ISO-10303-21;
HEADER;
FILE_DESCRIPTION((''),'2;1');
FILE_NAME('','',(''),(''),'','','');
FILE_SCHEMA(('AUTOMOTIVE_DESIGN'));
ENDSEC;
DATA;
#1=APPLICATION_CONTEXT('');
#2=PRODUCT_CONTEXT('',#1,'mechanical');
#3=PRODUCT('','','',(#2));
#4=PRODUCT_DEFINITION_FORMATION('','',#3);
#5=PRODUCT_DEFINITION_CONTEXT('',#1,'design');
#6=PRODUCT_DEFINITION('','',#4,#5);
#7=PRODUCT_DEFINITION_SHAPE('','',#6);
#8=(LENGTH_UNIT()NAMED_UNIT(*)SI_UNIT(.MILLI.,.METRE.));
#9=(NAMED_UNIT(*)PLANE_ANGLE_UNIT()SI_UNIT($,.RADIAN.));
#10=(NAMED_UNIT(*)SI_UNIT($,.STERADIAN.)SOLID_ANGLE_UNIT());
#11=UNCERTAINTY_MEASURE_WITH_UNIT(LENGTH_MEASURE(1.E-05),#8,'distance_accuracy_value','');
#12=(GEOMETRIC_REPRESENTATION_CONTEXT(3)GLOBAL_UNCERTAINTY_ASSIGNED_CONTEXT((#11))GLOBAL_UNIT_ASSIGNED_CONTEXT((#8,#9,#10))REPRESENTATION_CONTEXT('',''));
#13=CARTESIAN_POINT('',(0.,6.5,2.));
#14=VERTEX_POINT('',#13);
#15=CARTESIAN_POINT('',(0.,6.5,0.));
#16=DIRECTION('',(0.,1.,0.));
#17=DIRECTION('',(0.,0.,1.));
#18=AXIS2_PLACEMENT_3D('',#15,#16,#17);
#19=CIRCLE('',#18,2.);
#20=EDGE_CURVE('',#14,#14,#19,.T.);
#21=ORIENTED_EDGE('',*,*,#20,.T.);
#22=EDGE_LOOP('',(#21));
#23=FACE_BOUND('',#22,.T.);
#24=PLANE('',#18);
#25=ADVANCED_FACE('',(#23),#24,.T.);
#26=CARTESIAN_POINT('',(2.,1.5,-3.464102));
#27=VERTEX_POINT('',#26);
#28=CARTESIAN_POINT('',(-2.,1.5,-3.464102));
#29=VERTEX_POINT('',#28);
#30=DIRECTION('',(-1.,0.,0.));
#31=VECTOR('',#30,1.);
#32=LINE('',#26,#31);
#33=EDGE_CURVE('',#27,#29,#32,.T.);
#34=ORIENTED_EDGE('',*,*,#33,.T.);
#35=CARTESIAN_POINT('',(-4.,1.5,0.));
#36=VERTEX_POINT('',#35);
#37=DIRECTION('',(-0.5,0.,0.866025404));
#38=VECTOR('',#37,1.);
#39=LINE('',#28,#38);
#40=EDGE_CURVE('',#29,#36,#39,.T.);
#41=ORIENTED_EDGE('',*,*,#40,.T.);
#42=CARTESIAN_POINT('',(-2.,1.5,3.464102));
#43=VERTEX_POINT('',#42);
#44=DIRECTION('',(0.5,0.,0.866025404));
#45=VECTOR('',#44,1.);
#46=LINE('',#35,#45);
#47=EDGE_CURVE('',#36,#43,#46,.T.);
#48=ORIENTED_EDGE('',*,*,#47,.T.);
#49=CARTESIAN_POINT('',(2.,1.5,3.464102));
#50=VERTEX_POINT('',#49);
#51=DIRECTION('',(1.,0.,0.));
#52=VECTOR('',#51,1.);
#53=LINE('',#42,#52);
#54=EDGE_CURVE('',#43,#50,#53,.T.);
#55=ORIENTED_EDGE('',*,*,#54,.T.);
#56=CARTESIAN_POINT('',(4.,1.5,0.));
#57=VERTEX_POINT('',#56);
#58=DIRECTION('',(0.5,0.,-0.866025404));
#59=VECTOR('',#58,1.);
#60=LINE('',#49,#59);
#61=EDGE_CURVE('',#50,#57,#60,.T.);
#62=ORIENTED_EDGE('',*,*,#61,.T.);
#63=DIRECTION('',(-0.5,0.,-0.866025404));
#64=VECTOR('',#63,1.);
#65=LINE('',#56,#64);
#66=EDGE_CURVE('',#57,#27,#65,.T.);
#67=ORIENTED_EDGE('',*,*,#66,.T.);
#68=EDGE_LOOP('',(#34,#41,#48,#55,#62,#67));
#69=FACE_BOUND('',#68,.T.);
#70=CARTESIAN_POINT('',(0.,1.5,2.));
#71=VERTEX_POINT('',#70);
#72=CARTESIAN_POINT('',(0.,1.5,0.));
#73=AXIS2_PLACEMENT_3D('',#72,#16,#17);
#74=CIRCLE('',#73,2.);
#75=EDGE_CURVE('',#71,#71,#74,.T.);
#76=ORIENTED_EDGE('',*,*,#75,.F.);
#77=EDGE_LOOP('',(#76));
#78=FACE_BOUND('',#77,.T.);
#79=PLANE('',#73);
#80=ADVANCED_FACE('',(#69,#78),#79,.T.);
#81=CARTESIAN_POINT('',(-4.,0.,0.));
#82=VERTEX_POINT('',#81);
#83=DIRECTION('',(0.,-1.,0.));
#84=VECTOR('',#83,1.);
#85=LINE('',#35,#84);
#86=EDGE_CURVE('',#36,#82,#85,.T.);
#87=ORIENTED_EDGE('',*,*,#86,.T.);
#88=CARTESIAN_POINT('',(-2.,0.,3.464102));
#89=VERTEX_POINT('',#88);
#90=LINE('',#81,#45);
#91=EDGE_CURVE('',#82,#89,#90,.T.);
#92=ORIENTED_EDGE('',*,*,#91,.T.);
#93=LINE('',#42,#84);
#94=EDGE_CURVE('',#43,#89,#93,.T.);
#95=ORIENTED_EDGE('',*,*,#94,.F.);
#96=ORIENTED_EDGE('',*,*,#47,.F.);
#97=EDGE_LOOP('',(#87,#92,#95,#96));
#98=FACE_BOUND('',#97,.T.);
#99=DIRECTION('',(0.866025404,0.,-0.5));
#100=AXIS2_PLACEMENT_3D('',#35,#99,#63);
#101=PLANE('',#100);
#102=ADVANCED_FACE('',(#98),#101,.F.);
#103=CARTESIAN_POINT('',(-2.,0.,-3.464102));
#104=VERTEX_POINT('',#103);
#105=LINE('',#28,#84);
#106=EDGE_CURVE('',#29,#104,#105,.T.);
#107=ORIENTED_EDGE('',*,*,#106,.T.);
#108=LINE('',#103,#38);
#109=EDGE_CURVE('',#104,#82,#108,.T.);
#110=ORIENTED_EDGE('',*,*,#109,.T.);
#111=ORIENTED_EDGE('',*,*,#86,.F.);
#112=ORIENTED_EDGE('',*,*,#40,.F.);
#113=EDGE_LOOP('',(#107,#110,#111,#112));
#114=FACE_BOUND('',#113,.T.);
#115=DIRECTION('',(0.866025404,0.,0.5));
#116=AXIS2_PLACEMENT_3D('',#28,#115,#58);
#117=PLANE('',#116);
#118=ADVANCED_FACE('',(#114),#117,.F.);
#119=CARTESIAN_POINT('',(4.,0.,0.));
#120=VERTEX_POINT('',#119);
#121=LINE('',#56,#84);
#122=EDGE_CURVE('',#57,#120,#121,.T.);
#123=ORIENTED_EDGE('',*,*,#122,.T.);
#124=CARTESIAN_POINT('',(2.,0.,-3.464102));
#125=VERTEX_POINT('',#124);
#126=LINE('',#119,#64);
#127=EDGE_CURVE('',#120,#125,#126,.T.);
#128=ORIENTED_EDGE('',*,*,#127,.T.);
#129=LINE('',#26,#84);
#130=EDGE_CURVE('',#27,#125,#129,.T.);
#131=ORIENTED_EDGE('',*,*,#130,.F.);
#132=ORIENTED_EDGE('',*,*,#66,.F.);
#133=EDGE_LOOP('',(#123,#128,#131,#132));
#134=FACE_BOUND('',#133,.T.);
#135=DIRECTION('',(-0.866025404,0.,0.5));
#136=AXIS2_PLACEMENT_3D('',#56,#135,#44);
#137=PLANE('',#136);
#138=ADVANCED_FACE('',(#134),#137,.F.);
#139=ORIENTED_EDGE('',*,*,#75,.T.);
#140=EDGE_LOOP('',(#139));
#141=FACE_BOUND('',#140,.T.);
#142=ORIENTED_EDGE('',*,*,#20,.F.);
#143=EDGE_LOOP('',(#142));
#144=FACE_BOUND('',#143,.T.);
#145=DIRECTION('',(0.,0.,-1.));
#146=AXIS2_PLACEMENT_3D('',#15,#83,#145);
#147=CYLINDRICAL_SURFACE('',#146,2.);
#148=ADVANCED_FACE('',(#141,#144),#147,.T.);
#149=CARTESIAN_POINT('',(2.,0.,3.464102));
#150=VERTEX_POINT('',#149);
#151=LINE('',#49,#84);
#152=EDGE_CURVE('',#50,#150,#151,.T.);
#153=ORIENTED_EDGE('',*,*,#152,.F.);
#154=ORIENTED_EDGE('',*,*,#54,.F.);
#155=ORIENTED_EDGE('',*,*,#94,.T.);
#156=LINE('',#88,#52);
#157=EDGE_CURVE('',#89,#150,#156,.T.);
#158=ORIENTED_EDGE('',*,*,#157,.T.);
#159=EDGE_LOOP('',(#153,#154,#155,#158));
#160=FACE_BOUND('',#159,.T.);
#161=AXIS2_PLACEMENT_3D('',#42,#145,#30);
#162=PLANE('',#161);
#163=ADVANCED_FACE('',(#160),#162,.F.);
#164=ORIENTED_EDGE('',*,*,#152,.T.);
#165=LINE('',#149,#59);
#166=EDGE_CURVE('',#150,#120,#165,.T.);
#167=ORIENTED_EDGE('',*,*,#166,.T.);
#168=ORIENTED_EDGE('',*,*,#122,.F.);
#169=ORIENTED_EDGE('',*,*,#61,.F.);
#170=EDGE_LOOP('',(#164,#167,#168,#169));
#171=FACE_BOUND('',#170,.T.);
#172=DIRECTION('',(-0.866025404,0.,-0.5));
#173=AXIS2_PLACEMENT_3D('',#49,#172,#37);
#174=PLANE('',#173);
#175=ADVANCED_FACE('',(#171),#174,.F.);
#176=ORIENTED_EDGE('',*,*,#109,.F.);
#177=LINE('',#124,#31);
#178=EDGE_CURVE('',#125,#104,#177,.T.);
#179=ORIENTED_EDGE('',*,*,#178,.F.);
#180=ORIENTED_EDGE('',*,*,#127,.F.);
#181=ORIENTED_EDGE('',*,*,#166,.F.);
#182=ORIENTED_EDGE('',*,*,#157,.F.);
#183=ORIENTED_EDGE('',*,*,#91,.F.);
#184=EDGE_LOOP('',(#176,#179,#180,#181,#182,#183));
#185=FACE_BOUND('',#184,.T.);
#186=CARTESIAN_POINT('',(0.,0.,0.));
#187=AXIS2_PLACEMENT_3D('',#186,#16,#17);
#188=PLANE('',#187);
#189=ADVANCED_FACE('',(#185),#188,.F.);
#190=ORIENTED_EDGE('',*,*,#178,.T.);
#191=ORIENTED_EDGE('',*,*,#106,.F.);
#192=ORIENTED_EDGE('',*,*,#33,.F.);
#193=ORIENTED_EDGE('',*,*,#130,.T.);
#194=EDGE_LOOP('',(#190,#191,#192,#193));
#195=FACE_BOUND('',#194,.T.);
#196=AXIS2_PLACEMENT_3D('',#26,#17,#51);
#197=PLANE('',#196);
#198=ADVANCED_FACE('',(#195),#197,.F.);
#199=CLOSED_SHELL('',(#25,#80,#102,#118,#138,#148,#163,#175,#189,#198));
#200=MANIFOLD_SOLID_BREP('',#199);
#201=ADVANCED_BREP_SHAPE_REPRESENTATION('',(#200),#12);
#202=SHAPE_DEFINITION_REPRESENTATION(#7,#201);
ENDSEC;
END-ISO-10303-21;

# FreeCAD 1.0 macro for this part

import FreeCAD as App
import Part
import Sketcher
from FreeCAD import Vector
Q = App.Units.Quantity

doc = App.newDocument("Part")
params = doc.addObject("Spreadsheet::Sheet", "Params")
for row, (alias, value) in enumerate([
    ("sketch1_width", "4 mm"),
    ("sketch1_length", "4 mm"),
    ("pad1_length", "1.5 mm"),
    ("sketch2_diameter", "4 mm"),
    ("pad2_length", "5 mm"),
], start=1):
    params.set(f"A{row}", alias)
    params.set(f"B{row}", "=" + value)
    params.setAlias(f"B{row}", alias)

body = doc.addObject("PartDesign::Body", "Body")

# Sketch on XZ plane
sketch1 = doc.addObject("Sketcher::SketchObject", "Sketch")
body.addObject(sketch1)
sketch1.AttachmentSupport = (doc.XZ_Plane, [""])
sketch1.MapMode = "FlatFace"
sketch1.addGeometry(Part.LineSegment(Vector(4, 0, 0), Vector(2, -3.5, 0)), False)
sketch1.addGeometry(Part.LineSegment(Vector(2, -3.5, 0), Vector(-2, -3.5, 0)), False)
sketch1.addGeometry(Part.LineSegment(Vector(-2, -3.5, 0), Vector(-4, 0, 0)), False)
sketch1.addGeometry(Part.LineSegment(Vector(-4, 0, 0), Vector(-2, 3.5, 0)), False)
sketch1.addGeometry(Part.LineSegment(Vector(-2, 3.5, 0), Vector(2, 3.5, 0)), False)
sketch1.addGeometry(Part.LineSegment(Vector(2, 3.5, 0), Vector(4, 0, 0)), False)
sketch1.addConstraint(Sketcher.Constraint("Coincident", 0, 2, 1, 1))
sketch1.addConstraint(Sketcher.Constraint("Coincident", 1, 2, 2, 1))
sketch1.addConstraint(Sketcher.Constraint("Coincident", 2, 2, 3, 1))
sketch1.addConstraint(Sketcher.Constraint("Coincident", 3, 2, 4, 1))
sketch1.addConstraint(Sketcher.Constraint("Coincident", 4, 2, 5, 1))
sketch1.addConstraint(Sketcher.Constraint("Coincident", 5, 2, 0, 1))
sketch1.addConstraint(Sketcher.Constraint("Horizontal", 1))
sketch1.addConstraint(Sketcher.Constraint("Horizontal", 4))
sketch1.addConstraint(Sketcher.Constraint("Symmetric", 0, 2, 3, 2, -1, 1))
sketch1.addConstraint(Sketcher.Constraint("Symmetric", 2, 2, 5, 2, -1, 1))
sketch1.addConstraint(Sketcher.Constraint("PointOnObject", 2, 2, -1))
sketch1.addConstraint(Sketcher.Constraint("Parallel", 2, 5))
sketch1.addConstraint(Sketcher.Constraint("Vertical", 1, 2, 3, 2))
sketch1.addConstraint(Sketcher.Constraint("DistanceX", 1, 2, 1, 1, Q("4 mm")))
sketch1.addConstraint(Sketcher.Constraint("Angle", 0, Q("-120 deg")))
sketch1.addConstraint(Sketcher.Constraint("Distance", 0, Q("4 mm")))
sketch1.setExpression("Constraints[13]", "Params.sketch1_width")
sketch1.setExpression("Constraints[15]", "Params.sketch1_length")
pad1 = doc.addObject("PartDesign::Pad", "Pad")
body.addObject(pad1)
pad1.Profile = sketch1
pad1.setExpression("Length", "Params.pad1_length")
pad1.Reversed = True

# Sketch on XZ plane
sketch2 = doc.addObject("Sketcher::SketchObject", "Sketch001")
body.addObject(sketch2)
sketch2.AttachmentSupport = (doc.XZ_Plane, [""])
sketch2.MapMode = "FlatFace"
sketch2.AttachmentOffset = App.Placement(Vector(0, 0, -1.5), App.Rotation())
sketch2.addGeometry(Part.Circle(Vector(0, 0, 0), Vector(0, 0, 1), 2), False)
sketch2.addConstraint(Sketcher.Constraint("Coincident", 0, 3, -1, 1))
sketch2.addConstraint(Sketcher.Constraint("Diameter", 0, Q("4 mm")))
sketch2.setExpression("Constraints[1]", "Params.sketch2_diameter")
pad2 = doc.addObject("PartDesign::Pad", "Pad001")
body.addObject(pad2)
pad2.Profile = sketch2
pad2.setExpression("Length", "Params.pad2_length")
pad2.Reversed = True

doc.recompute()
